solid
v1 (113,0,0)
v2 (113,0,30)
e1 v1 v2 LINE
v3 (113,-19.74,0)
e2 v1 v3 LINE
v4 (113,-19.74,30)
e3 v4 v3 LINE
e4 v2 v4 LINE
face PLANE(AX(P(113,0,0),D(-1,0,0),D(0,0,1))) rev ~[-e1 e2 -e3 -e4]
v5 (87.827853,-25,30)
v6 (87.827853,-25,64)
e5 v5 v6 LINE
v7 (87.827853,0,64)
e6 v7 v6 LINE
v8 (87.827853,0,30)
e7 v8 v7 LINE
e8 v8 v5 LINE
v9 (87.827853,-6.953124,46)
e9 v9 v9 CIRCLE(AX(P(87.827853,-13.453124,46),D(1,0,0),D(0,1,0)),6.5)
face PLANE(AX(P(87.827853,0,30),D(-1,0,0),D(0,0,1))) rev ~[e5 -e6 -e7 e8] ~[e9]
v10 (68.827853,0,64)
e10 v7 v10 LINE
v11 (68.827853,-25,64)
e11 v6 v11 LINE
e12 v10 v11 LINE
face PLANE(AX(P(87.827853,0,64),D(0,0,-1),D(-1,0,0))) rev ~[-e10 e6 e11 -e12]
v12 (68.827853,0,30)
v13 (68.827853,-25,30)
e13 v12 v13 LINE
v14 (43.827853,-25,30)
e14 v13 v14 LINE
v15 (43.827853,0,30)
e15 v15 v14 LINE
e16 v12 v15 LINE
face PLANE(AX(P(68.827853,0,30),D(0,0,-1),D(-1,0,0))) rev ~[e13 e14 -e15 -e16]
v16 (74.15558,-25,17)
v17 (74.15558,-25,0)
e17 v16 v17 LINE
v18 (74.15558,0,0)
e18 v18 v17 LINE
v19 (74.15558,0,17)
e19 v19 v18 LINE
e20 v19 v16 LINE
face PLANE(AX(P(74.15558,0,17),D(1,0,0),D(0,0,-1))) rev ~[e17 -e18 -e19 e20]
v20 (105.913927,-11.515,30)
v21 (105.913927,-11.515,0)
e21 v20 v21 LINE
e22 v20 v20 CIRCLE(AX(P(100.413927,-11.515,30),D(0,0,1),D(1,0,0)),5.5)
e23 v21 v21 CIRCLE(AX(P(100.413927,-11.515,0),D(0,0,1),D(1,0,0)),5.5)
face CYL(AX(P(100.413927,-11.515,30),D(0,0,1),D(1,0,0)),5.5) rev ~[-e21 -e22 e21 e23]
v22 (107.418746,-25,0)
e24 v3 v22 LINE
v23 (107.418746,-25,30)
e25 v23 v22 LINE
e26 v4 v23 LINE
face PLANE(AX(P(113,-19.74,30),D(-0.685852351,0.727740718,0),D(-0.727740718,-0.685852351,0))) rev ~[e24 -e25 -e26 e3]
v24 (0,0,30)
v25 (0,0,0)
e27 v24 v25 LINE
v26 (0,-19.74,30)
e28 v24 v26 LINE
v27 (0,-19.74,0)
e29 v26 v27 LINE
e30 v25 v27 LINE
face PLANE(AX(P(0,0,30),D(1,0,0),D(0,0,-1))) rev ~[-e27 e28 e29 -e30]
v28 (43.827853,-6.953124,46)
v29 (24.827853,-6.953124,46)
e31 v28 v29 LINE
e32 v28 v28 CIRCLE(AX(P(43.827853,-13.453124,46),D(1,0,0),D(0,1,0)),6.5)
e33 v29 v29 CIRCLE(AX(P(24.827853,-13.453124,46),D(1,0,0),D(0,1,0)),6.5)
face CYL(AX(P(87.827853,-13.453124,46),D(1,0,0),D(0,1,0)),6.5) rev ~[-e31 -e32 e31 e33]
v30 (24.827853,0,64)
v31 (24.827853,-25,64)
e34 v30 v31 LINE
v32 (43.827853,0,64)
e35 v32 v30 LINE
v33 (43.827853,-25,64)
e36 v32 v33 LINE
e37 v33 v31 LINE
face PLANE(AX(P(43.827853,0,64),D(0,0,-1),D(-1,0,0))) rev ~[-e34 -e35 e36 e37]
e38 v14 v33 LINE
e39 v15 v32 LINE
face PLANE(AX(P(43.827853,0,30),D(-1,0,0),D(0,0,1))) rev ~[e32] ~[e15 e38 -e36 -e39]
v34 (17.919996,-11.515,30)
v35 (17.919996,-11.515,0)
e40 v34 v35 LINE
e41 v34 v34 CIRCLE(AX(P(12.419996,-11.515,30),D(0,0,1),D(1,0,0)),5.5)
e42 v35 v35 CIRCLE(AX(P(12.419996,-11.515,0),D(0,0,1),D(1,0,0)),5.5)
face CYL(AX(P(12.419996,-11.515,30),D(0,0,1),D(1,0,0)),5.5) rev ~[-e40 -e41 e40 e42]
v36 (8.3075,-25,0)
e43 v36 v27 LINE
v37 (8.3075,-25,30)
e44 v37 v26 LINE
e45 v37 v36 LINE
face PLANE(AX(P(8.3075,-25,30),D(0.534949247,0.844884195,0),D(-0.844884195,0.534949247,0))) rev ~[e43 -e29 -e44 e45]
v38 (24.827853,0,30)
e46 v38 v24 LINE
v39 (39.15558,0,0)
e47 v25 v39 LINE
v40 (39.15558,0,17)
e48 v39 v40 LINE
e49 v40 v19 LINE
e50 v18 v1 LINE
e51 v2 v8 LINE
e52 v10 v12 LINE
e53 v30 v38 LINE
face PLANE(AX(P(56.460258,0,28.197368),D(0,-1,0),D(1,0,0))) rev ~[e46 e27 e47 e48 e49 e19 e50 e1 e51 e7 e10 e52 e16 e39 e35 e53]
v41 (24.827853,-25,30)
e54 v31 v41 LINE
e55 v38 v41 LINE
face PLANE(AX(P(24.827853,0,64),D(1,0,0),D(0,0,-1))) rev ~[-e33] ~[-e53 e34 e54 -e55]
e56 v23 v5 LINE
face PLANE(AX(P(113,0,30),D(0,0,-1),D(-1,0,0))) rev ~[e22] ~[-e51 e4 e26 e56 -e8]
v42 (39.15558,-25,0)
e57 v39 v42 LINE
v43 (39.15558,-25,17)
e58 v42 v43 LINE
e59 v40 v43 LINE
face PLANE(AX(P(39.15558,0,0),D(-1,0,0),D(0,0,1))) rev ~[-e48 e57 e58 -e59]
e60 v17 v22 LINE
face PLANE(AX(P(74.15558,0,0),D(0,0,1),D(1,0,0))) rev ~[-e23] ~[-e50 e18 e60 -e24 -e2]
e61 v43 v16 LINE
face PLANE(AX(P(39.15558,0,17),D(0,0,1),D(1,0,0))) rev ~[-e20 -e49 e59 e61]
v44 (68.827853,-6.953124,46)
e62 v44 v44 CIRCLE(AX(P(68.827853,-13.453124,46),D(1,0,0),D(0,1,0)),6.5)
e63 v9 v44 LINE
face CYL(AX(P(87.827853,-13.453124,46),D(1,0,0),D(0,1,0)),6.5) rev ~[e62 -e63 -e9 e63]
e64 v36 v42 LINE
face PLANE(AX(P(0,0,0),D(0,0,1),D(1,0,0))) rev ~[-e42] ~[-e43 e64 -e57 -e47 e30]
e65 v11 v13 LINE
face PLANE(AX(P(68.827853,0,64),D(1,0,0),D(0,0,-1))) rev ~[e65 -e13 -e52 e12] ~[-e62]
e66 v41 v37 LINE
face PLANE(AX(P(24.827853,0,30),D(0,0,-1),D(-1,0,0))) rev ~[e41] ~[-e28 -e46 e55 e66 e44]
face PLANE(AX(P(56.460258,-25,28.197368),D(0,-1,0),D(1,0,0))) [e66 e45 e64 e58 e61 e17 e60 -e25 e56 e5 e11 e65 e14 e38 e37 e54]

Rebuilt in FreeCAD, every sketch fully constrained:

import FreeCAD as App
import Part
import Sketcher

V = App.Vector

doc = App.newDocument("Part")
body = doc.addObject("PartDesign::Body", "Body")

sketch1 = body.newObject("Sketcher::SketchObject", "Sketch")
sketch1.AttachmentSupport = (doc.getObject("XZ_Plane"), [""])
sketch1.MapMode = "FlatFace"
sketch1.addGeometry([
    Part.LineSegment(V(0, 30, 0), V(0, 0, 0)),
    Part.LineSegment(V(0, 0, 0), V(39, 0, 0)),
    Part.LineSegment(V(39, 0, 0), V(39, 17, 0)),
    Part.LineSegment(V(39, 17, 0), V(74, 17, 0)),
    Part.LineSegment(V(74, 17, 0), V(74, 0, 0)),
    Part.LineSegment(V(74, 0, 0), V(113, 0, 0)),
    Part.LineSegment(V(113, 0, 0), V(113, 30, 0)),
    Part.LineSegment(V(113, 30, 0), V(88, 30, 0)),
    Part.LineSegment(V(88, 30, 0), V(88, 64, 0)),
    Part.LineSegment(V(88, 64, 0), V(69, 64, 0)),
    Part.LineSegment(V(69, 64, 0), V(69, 30, 0)),
    Part.LineSegment(V(69, 30, 0), V(44, 30, 0)),
    Part.LineSegment(V(44, 30, 0), V(44, 64, 0)),
    Part.LineSegment(V(44, 64, 0), V(25, 64, 0)),
    Part.LineSegment(V(25, 64, 0), V(25, 30, 0)),
    Part.LineSegment(V(25, 30, 0), V(0, 30, 0)),
], False)
sketch1.addConstraint([
    Sketcher.Constraint("Coincident", 0, 2, 1, 1),
    Sketcher.Constraint("Coincident", 1, 2, 2, 1),
    Sketcher.Constraint("Coincident", 2, 2, 3, 1),
    Sketcher.Constraint("Coincident", 3, 2, 4, 1),
    Sketcher.Constraint("Coincident", 4, 2, 5, 1),
    Sketcher.Constraint("Coincident", 5, 2, 6, 1),
    Sketcher.Constraint("Coincident", 6, 2, 7, 1),
    Sketcher.Constraint("Coincident", 7, 2, 8, 1),
    Sketcher.Constraint("Coincident", 8, 2, 9, 1),
    Sketcher.Constraint("Coincident", 9, 2, 10, 1),
    Sketcher.Constraint("Coincident", 10, 2, 11, 1),
    Sketcher.Constraint("Coincident", 11, 2, 12, 1),
    Sketcher.Constraint("Coincident", 12, 2, 13, 1),
    Sketcher.Constraint("Coincident", 13, 2, 14, 1),
    Sketcher.Constraint("Coincident", 14, 2, 15, 1),
    Sketcher.Constraint("Coincident", 15, 2, 0, 1),
    Sketcher.Constraint("Vertical", 0),
    Sketcher.Constraint("Horizontal", 1),
    Sketcher.Constraint("Vertical", 2),
    Sketcher.Constraint("Horizontal", 3),
    Sketcher.Constraint("Vertical", 4),
    Sketcher.Constraint("Horizontal", 5),
    Sketcher.Constraint("Vertical", 6),
    Sketcher.Constraint("Horizontal", 7),
    Sketcher.Constraint("Vertical", 8),
    Sketcher.Constraint("Horizontal", 9),
    Sketcher.Constraint("Vertical", 10),
    Sketcher.Constraint("Horizontal", 11),
    Sketcher.Constraint("Vertical", 12),
    Sketcher.Constraint("Horizontal", 13),
    Sketcher.Constraint("Vertical", 14),
    Sketcher.Constraint("Horizontal", 15),
    Sketcher.Constraint("Coincident", 0, 2, -1, 1),
    Sketcher.Constraint("PointOnObject", 4, 2, -1),
    Sketcher.Constraint("Horizontal", 7, 2, 10, 2),
    Sketcher.Constraint("Horizontal", 9, 2, 12, 2),
    Sketcher.Constraint("Horizontal", 11, 2, 14, 2),
    Sketcher.Constraint("Equal", 9, 13),
    Sketcher.Constraint("DistanceX", 3, 1, 3, 2, 35.0),
    Sketcher.Constraint("DistanceX", 9, 2, 9, 1, 19.0),
    Sketcher.Constraint("DistanceX", 11, 2, 11, 1, 25.0),
    Sketcher.Constraint("DistanceY", 0, 2, 0, 1, 30.0),
    Sketcher.Constraint("DistanceY", 2, 1, 2, 2, 17.0),
    Sketcher.Constraint("DistanceY", 8, 1, 8, 2, 34.0),
    Sketcher.Constraint("DistanceX", -1, 1, 5, 2, 113.0),
    Sketcher.Constraint("DistanceX", 1, 1, 1, 2, 39.15558),
    Sketcher.Constraint("DistanceX", 7, 2, 7, 1, 25.172147),
])
pad1 = body.newObject("PartDesign::Pad", "Pad")
pad1.Profile = sketch1
pad1.Length = 25

sketch2 = body.newObject("Sketcher::SketchObject", "Sketch001")
sketch2.AttachmentSupport = (doc.getObject("YZ_Plane"), [""])
sketch2.MapMode = "FlatFace"
sketch2.AttachmentOffset = App.Placement(V(0, 0, 87.827853), App.Rotation())
sketch2.addGeometry(Part.Circle(V(-13, 46, 0), V(0, 0, 1), 6), False)
sketch2.addConstraint([
    Sketcher.Constraint("Diameter", 0, 13.0),
    Sketcher.Constraint("DistanceY", -1, 1, 0, 3, 46.0),
    Sketcher.Constraint("DistanceX", 0, 3, -1, 1, 13.453124),
])
pocket1 = body.newObject("PartDesign::Pocket", "Pocket")
pocket1.Profile = sketch2
pocket1.Type = "ThroughAll"

sketch3 = body.newObject("Sketcher::SketchObject", "Sketch002")
sketch3.AttachmentSupport = (doc.getObject("XY_Plane"), [""])
sketch3.MapMode = "FlatFace"
sketch3.AttachmentOffset = App.Placement(V(0, 0, 30), App.Rotation())
sketch3.addGeometry([
    Part.LineSegment(V(0, -25, 0), V(8, -25, 0)),
    Part.LineSegment(V(8, -25, 0), V(0, -20, 0)),
    Part.LineSegment(V(0, -20, 0), V(0, -25, 0)),
    Part.LineSegment(V(113, -20, 0), V(107, -25, 0)),
    Part.LineSegment(V(107, -25, 0), V(113, -25, 0)),
    Part.LineSegment(V(113, -25, 0), V(113, -20, 0)),
], False)
sketch3.addConstraint([
    Sketcher.Constraint("Coincident", 0, 2, 1, 1),
    Sketcher.Constraint("Coincident", 1, 2, 2, 1),
    Sketcher.Constraint("Coincident", 2, 2, 0, 1),
    Sketcher.Constraint("Coincident", 3, 2, 4, 1),
    Sketcher.Constraint("Coincident", 4, 2, 5, 1),
    Sketcher.Constraint("Coincident", 5, 2, 3, 1),
    Sketcher.Constraint("Horizontal", 0),
    Sketcher.Constraint("Vertical", 2),
    Sketcher.Constraint("Horizontal", 4),
    Sketcher.Constraint("Vertical", 5),
    Sketcher.Constraint("PointOnObject", 1, 2, -2),
    Sketcher.Constraint("Horizontal", 2, 2, 3, 2),
    Sketcher.Constraint("Horizontal", 1, 2, 5, 2),
    Sketcher.Constraint("DistanceY", 0, 2, -1, 1, 25.0),
    Sketcher.Constraint("DistanceX", -1, 1, 4, 2, 113.0),
    Sketcher.Constraint("DistanceY", 2, 2, 2, 1, 5.26),
    Sketcher.Constraint("DistanceX", 0, 1, 0, 2, 8.3075),
    Sketcher.Constraint("Distance", 3, 7.669289),
])
pocket2 = body.newObject("PartDesign::Pocket", "Pocket001")
pocket2.Profile = sketch3
pocket2.Type = "ThroughAll"

sketch4 = body.newObject("Sketcher::SketchObject", "Sketch003")
sketch4.AttachmentSupport = (doc.getObject("XY_Plane"), [""])
sketch4.MapMode = "FlatFace"
sketch4.AttachmentOffset = App.Placement(V(0, 0, 30), App.Rotation())
sketch4.addGeometry([
    Part.LineSegment(V(113, -20, 0), V(107, -25, 0)),
    Part.LineSegment(V(107, -25, 0), V(113, -25, 0)),
    Part.LineSegment(V(113, -25, 0), V(113, -20, 0)),
    Part.LineSegment(V(0, -25, 0), V(8, -25, 0)),
    Part.LineSegment(V(8, -25, 0), V(0, -20, 0)),
    Part.LineSegment(V(0, -20, 0), V(0, -25, 0)),
    Part.Circle(V(12, -12, 0), V(0, 0, 1), 6),
    Part.Circle(V(100, -12, 0), V(0, 0, 1), 6),
], False)
sketch4.addConstraint([
    Sketcher.Constraint("Coincident", 0, 2, 1, 1),
    Sketcher.Constraint("Coincident", 1, 2, 2, 1),
    Sketcher.Constraint("Coincident", 2, 2, 0, 1),
    Sketcher.Constraint("Coincident", 3, 2, 4, 1),
    Sketcher.Constraint("Coincident", 4, 2, 5, 1),
    Sketcher.Constraint("Coincident", 5, 2, 3, 1),
    Sketcher.Constraint("Horizontal", 1),
    Sketcher.Constraint("Vertical", 2),
    Sketcher.Constraint("Horizontal", 3),
    Sketcher.Constraint("Vertical", 5),
    Sketcher.Constraint("Equal", 6, 7),
    Sketcher.Constraint("PointOnObject", 4, 2, -2),
    Sketcher.Constraint("Horizontal", 6, 3, 7, 3),
    Sketcher.Constraint("Horizontal", 1, 2, 3, 2),
    Sketcher.Constraint("Horizontal", 2, 2, 4, 2),
    Sketcher.Constraint("Diameter", 6, 11.0),
    Sketcher.Constraint("DistanceY", 0, 2, -1, 1, 25.0),
    Sketcher.Constraint("DistanceX", -1, 1, 1, 2, 113.0),
    Sketcher.Constraint("DistanceY", 2, 1, 2, 2, 5.26),
    Sketcher.Constraint("DistanceX", 3, 1, 3, 2, 8.3075),
    Sketcher.Constraint("DistanceY", 6, 3, -1, 1, 11.515),
    Sketcher.Constraint("Distance", 0, 7.669289),
    Sketcher.Constraint("DistanceX", 6, 3, 7, 3, 87.993931),
    Sketcher.Constraint("DistanceX", 7, 3, 0, 2, 7.004819),
])
pocket3 = body.newObject("PartDesign::Pocket", "Pocket002")
pocket3.Profile = sketch4
pocket3.Type = "ThroughAll"

doc.recompute()
